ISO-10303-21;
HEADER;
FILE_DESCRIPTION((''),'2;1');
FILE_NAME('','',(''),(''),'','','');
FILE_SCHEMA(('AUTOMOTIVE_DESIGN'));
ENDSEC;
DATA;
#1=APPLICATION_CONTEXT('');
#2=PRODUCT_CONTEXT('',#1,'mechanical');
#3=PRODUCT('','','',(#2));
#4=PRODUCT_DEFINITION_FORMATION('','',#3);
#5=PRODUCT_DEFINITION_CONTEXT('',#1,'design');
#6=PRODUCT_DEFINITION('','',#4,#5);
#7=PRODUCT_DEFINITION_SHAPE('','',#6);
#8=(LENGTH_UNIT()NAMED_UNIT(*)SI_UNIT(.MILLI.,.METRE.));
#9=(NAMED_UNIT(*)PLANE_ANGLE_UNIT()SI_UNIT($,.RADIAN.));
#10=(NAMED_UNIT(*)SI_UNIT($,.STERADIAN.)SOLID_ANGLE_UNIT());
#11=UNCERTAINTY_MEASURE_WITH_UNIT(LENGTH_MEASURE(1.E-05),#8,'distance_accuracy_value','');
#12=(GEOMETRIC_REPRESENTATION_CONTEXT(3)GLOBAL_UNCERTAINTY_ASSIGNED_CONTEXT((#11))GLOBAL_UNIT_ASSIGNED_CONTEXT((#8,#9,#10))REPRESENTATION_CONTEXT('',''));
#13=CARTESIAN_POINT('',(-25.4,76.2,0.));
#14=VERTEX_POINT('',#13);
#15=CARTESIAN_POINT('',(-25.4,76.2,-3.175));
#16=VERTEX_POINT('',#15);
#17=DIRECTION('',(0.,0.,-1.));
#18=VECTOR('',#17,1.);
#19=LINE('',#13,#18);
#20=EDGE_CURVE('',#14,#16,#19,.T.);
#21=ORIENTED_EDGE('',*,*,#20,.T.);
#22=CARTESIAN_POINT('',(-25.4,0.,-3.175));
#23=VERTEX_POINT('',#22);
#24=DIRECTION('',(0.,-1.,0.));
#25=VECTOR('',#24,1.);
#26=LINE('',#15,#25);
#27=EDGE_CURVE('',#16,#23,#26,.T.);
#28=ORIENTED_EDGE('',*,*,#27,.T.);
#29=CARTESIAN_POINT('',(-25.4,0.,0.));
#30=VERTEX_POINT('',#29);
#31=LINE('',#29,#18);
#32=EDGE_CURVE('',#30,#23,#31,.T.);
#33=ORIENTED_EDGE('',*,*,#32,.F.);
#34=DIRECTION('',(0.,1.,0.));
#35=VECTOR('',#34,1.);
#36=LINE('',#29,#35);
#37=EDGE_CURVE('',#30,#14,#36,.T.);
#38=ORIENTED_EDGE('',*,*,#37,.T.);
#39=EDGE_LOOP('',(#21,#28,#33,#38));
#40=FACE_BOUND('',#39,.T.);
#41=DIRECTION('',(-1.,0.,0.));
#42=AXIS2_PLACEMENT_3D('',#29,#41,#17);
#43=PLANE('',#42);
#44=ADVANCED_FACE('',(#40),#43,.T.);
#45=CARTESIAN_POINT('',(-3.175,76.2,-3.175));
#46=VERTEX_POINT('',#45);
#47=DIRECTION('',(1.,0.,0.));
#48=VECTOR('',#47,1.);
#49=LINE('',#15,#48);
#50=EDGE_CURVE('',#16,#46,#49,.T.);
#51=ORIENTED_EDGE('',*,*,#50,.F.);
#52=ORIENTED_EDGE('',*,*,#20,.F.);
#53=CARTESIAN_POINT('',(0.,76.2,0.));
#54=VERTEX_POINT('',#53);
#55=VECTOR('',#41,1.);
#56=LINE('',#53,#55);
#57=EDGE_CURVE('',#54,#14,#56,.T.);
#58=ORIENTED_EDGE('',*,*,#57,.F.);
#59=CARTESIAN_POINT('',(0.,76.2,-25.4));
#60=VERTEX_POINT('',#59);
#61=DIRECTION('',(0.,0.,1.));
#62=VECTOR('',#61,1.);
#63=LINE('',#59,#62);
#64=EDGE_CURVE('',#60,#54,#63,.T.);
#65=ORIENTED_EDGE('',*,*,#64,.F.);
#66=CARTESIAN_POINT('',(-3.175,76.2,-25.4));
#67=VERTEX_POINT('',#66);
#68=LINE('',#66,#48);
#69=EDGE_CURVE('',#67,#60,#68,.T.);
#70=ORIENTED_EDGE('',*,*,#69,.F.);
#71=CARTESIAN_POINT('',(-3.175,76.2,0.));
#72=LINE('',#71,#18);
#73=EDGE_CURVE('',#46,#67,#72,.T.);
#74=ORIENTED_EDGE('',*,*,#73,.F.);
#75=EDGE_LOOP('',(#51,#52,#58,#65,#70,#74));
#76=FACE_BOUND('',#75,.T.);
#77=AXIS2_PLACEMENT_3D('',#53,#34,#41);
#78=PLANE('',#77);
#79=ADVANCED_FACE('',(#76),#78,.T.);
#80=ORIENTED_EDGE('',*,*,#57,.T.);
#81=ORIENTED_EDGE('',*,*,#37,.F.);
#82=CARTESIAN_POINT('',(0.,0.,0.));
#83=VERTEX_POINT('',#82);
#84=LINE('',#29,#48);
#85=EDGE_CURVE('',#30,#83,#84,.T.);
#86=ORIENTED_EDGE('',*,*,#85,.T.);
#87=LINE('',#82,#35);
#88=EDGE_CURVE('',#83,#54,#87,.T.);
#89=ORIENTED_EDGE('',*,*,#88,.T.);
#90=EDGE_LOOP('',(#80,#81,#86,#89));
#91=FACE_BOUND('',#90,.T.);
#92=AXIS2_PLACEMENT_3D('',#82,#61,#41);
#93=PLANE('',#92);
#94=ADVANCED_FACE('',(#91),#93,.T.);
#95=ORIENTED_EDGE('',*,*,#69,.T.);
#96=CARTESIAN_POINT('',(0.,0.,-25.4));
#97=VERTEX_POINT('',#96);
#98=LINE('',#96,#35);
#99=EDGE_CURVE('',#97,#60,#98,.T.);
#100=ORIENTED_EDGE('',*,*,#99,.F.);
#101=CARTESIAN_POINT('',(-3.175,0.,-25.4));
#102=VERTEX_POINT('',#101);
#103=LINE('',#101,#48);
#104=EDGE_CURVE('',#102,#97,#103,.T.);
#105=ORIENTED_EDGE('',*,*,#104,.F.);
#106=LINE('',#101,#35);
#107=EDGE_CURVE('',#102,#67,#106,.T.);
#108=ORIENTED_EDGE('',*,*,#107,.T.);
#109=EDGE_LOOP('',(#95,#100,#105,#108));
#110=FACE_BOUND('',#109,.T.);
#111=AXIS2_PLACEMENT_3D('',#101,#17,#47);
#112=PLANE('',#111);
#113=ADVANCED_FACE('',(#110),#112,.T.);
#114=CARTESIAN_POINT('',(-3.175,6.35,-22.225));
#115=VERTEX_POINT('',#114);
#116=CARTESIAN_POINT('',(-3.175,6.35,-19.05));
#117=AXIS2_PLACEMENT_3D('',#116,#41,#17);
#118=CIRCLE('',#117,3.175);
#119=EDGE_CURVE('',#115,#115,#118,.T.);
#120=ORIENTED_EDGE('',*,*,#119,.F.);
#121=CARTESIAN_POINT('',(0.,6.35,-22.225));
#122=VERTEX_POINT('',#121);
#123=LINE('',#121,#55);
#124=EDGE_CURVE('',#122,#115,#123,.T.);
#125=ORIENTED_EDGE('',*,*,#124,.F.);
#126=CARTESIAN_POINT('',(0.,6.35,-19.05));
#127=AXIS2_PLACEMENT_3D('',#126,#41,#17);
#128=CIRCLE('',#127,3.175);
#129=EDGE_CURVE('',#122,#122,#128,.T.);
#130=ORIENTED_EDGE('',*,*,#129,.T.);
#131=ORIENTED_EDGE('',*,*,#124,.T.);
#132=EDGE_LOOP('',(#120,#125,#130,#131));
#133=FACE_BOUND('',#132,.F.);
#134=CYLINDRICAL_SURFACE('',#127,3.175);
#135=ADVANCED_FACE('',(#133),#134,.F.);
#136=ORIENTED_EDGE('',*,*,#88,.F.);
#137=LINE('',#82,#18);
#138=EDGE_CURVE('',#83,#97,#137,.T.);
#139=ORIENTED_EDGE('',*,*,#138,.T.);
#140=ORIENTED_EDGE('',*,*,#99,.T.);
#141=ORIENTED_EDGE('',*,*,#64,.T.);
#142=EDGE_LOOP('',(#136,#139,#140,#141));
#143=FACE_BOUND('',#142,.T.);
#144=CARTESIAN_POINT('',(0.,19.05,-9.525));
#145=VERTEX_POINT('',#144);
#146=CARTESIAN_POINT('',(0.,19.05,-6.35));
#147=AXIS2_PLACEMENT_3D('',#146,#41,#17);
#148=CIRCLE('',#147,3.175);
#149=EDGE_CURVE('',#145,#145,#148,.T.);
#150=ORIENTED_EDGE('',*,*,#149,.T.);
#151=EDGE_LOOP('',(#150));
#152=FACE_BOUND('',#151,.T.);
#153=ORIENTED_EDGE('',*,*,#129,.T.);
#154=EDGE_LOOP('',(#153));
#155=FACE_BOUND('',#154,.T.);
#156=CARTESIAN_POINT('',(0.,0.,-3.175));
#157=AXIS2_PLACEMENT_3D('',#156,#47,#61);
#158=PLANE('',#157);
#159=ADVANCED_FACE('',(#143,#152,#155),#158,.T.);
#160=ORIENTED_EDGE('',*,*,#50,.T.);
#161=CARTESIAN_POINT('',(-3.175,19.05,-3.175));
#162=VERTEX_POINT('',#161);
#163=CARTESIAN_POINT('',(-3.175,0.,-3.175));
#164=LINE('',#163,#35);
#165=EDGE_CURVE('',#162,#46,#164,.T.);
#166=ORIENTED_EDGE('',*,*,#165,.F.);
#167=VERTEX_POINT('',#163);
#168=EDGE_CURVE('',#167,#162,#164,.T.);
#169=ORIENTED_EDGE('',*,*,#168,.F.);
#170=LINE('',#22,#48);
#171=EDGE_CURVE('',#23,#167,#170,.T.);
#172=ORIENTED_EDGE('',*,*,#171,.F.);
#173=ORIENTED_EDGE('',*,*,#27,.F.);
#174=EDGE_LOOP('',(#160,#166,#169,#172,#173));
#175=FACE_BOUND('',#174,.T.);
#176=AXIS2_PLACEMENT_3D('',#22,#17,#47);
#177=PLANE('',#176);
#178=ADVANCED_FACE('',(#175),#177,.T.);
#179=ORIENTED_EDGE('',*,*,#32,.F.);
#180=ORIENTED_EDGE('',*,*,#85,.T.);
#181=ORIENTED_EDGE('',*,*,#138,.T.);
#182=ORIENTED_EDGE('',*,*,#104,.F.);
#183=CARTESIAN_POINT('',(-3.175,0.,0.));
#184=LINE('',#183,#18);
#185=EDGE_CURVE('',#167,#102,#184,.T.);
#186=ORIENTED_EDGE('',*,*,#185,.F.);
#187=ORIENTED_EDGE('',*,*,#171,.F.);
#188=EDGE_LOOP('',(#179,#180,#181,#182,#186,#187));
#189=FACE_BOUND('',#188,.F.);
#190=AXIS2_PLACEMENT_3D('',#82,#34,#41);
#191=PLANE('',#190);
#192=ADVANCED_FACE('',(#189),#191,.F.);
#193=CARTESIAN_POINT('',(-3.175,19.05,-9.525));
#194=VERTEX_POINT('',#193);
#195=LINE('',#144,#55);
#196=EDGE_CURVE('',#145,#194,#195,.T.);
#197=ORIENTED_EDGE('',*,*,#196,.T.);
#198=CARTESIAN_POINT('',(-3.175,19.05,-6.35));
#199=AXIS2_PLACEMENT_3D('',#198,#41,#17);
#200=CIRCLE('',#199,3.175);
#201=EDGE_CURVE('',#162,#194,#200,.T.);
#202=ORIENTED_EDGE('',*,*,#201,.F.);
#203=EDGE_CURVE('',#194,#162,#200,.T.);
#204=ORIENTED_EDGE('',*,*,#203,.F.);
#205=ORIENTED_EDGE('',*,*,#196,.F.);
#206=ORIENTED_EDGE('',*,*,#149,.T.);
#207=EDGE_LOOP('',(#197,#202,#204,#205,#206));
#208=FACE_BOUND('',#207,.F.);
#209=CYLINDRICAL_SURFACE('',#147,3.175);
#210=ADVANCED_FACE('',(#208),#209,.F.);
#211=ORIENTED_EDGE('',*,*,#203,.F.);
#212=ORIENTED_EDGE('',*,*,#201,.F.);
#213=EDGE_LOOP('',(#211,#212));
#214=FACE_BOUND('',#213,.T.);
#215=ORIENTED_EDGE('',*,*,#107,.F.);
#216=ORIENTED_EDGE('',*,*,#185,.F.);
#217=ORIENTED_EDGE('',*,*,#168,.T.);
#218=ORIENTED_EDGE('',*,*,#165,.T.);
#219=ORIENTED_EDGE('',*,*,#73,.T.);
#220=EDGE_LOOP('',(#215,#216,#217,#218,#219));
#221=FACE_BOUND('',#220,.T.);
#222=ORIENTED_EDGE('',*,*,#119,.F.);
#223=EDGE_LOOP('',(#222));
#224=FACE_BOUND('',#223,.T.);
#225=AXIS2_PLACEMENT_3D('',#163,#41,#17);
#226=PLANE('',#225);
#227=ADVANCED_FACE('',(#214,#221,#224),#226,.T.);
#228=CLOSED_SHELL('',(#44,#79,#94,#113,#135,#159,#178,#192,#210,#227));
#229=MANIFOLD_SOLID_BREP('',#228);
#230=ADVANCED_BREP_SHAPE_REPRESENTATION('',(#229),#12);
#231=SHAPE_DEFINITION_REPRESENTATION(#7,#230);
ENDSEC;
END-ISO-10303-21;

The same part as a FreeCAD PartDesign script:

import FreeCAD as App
import Part
import Sketcher
Q = App.Units.Quantity

doc = App.newDocument("Part")
body = doc.addObject("PartDesign::Body", "Body")

# Sketch on XZ plane
sketch1 = body.newObject("Sketcher::SketchObject", "Sketch")
sketch1.AttachmentSupport = (doc.getObject("XZ_Plane"), [""])
sketch1.MapMode = "FlatFace"
sketch1.addGeometry(Part.LineSegment(App.Vector(0, 0, 0), App.Vector(0, -25.4, 0)), False)
sketch1.addGeometry(Part.LineSegment(App.Vector(0, -25.4, 0), App.Vector(-3.2, -25.4, 0)), False)
sketch1.addGeometry(Part.LineSegment(App.Vector(-3.2, -25.4, 0), App.Vector(-3.2, -3.2, 0)), False)
sketch1.addGeometry(Part.LineSegment(App.Vector(-3.2, -3.2, 0), App.Vector(-25.4, -3.2, 0)), False)
sketch1.addGeometry(Part.LineSegment(App.Vector(-25.4, -3.2, 0), App.Vector(-25.4, 0, 0)), False)
sketch1.addGeometry(Part.LineSegment(App.Vector(-25.4, 0, 0), App.Vector(0, 0, 0)), False)
sketch1.addConstraint(Sketcher.Constraint("Coincident", 0, 2, 1, 1))
sketch1.addConstraint(Sketcher.Constraint("Coincident", 1, 2, 2, 1))
sketch1.addConstraint(Sketcher.Constraint("Coincident", 2, 2, 3, 1))
sketch1.addConstraint(Sketcher.Constraint("Coincident", 3, 2, 4, 1))
sketch1.addConstraint(Sketcher.Constraint("Coincident", 4, 2, 5, 1))
sketch1.addConstraint(Sketcher.Constraint("Coincident", 5, 2, 0, 1))
sketch1.addConstraint(Sketcher.Constraint("Vertical", 0))
sketch1.addConstraint(Sketcher.Constraint("Horizontal", 1))
sketch1.addConstraint(Sketcher.Constraint("Vertical", 2))
sketch1.addConstraint(Sketcher.Constraint("Horizontal", 3))
sketch1.addConstraint(Sketcher.Constraint("Vertical", 4))
sketch1.addConstraint(Sketcher.Constraint("Horizontal", 5))
sketch1.addConstraint(Sketcher.Constraint("Coincident", 5, 2, -1, 1))
sketch1.addConstraint(Sketcher.Constraint("Equal", 5, 0))
sketch1.addConstraint(Sketcher.Constraint("Equal", 3, 2))
sketch1.addConstraint(Sketcher.Constraint("DistanceX", 5, 1, 5, 2, Q("1 in")))
sketch1.addConstraint(Sketcher.Constraint("DistanceX", 1, 2, 1, 1, Q("0.125 in")))
pad1 = body.newObject("PartDesign::Pad", "Pad")
pad1.Profile = sketch1
pad1.Length = Q("3 in")
pad1.Reversed = True

# Sketch on YZ plane
sketch2 = body.newObject("Sketcher::SketchObject", "Sketch001")
sketch2.AttachmentSupport = (doc.getObject("YZ_Plane"), [""])
sketch2.MapMode = "FlatFace"
sketch2.addGeometry(Part.Circle(App.Vector(6.3, -19.1, 0), App.Vector(0, 0, 1), 3.2), False)
sketch2.addGeometry(Part.Circle(App.Vector(19.1, -6.3, 0), App.Vector(0, 0, 1), 3.2), False)
sketch2.addConstraint(Sketcher.Constraint("Equal", 0, 1))
sketch2.addConstraint(Sketcher.Constraint("Diameter", 0, Q("0.25 in")))
sketch2.addConstraint(Sketcher.Constraint("DistanceX", 0, 3, 1, 3, Q("0.5 in")))
sketch2.addConstraint(Sketcher.Constraint("DistanceY", 0, 3, 1, 3, Q("0.5 in")))
sketch2.addConstraint(Sketcher.Constraint("DistanceX", -1, 1, 0, 3, Q("0.25 in")))
sketch2.addConstraint(Sketcher.Constraint("DistanceY", 0, 3, -1, 1, Q("0.75 in")))
doc.recompute()
hole = body.newObject("PartDesign::Hole", "Hole")
hole.Profile = sketch2
hole.ThreadType = "None"
hole.Diameter = Q("0.25 in")
hole.DepthType = "ThroughAll"

doc.recompute()
